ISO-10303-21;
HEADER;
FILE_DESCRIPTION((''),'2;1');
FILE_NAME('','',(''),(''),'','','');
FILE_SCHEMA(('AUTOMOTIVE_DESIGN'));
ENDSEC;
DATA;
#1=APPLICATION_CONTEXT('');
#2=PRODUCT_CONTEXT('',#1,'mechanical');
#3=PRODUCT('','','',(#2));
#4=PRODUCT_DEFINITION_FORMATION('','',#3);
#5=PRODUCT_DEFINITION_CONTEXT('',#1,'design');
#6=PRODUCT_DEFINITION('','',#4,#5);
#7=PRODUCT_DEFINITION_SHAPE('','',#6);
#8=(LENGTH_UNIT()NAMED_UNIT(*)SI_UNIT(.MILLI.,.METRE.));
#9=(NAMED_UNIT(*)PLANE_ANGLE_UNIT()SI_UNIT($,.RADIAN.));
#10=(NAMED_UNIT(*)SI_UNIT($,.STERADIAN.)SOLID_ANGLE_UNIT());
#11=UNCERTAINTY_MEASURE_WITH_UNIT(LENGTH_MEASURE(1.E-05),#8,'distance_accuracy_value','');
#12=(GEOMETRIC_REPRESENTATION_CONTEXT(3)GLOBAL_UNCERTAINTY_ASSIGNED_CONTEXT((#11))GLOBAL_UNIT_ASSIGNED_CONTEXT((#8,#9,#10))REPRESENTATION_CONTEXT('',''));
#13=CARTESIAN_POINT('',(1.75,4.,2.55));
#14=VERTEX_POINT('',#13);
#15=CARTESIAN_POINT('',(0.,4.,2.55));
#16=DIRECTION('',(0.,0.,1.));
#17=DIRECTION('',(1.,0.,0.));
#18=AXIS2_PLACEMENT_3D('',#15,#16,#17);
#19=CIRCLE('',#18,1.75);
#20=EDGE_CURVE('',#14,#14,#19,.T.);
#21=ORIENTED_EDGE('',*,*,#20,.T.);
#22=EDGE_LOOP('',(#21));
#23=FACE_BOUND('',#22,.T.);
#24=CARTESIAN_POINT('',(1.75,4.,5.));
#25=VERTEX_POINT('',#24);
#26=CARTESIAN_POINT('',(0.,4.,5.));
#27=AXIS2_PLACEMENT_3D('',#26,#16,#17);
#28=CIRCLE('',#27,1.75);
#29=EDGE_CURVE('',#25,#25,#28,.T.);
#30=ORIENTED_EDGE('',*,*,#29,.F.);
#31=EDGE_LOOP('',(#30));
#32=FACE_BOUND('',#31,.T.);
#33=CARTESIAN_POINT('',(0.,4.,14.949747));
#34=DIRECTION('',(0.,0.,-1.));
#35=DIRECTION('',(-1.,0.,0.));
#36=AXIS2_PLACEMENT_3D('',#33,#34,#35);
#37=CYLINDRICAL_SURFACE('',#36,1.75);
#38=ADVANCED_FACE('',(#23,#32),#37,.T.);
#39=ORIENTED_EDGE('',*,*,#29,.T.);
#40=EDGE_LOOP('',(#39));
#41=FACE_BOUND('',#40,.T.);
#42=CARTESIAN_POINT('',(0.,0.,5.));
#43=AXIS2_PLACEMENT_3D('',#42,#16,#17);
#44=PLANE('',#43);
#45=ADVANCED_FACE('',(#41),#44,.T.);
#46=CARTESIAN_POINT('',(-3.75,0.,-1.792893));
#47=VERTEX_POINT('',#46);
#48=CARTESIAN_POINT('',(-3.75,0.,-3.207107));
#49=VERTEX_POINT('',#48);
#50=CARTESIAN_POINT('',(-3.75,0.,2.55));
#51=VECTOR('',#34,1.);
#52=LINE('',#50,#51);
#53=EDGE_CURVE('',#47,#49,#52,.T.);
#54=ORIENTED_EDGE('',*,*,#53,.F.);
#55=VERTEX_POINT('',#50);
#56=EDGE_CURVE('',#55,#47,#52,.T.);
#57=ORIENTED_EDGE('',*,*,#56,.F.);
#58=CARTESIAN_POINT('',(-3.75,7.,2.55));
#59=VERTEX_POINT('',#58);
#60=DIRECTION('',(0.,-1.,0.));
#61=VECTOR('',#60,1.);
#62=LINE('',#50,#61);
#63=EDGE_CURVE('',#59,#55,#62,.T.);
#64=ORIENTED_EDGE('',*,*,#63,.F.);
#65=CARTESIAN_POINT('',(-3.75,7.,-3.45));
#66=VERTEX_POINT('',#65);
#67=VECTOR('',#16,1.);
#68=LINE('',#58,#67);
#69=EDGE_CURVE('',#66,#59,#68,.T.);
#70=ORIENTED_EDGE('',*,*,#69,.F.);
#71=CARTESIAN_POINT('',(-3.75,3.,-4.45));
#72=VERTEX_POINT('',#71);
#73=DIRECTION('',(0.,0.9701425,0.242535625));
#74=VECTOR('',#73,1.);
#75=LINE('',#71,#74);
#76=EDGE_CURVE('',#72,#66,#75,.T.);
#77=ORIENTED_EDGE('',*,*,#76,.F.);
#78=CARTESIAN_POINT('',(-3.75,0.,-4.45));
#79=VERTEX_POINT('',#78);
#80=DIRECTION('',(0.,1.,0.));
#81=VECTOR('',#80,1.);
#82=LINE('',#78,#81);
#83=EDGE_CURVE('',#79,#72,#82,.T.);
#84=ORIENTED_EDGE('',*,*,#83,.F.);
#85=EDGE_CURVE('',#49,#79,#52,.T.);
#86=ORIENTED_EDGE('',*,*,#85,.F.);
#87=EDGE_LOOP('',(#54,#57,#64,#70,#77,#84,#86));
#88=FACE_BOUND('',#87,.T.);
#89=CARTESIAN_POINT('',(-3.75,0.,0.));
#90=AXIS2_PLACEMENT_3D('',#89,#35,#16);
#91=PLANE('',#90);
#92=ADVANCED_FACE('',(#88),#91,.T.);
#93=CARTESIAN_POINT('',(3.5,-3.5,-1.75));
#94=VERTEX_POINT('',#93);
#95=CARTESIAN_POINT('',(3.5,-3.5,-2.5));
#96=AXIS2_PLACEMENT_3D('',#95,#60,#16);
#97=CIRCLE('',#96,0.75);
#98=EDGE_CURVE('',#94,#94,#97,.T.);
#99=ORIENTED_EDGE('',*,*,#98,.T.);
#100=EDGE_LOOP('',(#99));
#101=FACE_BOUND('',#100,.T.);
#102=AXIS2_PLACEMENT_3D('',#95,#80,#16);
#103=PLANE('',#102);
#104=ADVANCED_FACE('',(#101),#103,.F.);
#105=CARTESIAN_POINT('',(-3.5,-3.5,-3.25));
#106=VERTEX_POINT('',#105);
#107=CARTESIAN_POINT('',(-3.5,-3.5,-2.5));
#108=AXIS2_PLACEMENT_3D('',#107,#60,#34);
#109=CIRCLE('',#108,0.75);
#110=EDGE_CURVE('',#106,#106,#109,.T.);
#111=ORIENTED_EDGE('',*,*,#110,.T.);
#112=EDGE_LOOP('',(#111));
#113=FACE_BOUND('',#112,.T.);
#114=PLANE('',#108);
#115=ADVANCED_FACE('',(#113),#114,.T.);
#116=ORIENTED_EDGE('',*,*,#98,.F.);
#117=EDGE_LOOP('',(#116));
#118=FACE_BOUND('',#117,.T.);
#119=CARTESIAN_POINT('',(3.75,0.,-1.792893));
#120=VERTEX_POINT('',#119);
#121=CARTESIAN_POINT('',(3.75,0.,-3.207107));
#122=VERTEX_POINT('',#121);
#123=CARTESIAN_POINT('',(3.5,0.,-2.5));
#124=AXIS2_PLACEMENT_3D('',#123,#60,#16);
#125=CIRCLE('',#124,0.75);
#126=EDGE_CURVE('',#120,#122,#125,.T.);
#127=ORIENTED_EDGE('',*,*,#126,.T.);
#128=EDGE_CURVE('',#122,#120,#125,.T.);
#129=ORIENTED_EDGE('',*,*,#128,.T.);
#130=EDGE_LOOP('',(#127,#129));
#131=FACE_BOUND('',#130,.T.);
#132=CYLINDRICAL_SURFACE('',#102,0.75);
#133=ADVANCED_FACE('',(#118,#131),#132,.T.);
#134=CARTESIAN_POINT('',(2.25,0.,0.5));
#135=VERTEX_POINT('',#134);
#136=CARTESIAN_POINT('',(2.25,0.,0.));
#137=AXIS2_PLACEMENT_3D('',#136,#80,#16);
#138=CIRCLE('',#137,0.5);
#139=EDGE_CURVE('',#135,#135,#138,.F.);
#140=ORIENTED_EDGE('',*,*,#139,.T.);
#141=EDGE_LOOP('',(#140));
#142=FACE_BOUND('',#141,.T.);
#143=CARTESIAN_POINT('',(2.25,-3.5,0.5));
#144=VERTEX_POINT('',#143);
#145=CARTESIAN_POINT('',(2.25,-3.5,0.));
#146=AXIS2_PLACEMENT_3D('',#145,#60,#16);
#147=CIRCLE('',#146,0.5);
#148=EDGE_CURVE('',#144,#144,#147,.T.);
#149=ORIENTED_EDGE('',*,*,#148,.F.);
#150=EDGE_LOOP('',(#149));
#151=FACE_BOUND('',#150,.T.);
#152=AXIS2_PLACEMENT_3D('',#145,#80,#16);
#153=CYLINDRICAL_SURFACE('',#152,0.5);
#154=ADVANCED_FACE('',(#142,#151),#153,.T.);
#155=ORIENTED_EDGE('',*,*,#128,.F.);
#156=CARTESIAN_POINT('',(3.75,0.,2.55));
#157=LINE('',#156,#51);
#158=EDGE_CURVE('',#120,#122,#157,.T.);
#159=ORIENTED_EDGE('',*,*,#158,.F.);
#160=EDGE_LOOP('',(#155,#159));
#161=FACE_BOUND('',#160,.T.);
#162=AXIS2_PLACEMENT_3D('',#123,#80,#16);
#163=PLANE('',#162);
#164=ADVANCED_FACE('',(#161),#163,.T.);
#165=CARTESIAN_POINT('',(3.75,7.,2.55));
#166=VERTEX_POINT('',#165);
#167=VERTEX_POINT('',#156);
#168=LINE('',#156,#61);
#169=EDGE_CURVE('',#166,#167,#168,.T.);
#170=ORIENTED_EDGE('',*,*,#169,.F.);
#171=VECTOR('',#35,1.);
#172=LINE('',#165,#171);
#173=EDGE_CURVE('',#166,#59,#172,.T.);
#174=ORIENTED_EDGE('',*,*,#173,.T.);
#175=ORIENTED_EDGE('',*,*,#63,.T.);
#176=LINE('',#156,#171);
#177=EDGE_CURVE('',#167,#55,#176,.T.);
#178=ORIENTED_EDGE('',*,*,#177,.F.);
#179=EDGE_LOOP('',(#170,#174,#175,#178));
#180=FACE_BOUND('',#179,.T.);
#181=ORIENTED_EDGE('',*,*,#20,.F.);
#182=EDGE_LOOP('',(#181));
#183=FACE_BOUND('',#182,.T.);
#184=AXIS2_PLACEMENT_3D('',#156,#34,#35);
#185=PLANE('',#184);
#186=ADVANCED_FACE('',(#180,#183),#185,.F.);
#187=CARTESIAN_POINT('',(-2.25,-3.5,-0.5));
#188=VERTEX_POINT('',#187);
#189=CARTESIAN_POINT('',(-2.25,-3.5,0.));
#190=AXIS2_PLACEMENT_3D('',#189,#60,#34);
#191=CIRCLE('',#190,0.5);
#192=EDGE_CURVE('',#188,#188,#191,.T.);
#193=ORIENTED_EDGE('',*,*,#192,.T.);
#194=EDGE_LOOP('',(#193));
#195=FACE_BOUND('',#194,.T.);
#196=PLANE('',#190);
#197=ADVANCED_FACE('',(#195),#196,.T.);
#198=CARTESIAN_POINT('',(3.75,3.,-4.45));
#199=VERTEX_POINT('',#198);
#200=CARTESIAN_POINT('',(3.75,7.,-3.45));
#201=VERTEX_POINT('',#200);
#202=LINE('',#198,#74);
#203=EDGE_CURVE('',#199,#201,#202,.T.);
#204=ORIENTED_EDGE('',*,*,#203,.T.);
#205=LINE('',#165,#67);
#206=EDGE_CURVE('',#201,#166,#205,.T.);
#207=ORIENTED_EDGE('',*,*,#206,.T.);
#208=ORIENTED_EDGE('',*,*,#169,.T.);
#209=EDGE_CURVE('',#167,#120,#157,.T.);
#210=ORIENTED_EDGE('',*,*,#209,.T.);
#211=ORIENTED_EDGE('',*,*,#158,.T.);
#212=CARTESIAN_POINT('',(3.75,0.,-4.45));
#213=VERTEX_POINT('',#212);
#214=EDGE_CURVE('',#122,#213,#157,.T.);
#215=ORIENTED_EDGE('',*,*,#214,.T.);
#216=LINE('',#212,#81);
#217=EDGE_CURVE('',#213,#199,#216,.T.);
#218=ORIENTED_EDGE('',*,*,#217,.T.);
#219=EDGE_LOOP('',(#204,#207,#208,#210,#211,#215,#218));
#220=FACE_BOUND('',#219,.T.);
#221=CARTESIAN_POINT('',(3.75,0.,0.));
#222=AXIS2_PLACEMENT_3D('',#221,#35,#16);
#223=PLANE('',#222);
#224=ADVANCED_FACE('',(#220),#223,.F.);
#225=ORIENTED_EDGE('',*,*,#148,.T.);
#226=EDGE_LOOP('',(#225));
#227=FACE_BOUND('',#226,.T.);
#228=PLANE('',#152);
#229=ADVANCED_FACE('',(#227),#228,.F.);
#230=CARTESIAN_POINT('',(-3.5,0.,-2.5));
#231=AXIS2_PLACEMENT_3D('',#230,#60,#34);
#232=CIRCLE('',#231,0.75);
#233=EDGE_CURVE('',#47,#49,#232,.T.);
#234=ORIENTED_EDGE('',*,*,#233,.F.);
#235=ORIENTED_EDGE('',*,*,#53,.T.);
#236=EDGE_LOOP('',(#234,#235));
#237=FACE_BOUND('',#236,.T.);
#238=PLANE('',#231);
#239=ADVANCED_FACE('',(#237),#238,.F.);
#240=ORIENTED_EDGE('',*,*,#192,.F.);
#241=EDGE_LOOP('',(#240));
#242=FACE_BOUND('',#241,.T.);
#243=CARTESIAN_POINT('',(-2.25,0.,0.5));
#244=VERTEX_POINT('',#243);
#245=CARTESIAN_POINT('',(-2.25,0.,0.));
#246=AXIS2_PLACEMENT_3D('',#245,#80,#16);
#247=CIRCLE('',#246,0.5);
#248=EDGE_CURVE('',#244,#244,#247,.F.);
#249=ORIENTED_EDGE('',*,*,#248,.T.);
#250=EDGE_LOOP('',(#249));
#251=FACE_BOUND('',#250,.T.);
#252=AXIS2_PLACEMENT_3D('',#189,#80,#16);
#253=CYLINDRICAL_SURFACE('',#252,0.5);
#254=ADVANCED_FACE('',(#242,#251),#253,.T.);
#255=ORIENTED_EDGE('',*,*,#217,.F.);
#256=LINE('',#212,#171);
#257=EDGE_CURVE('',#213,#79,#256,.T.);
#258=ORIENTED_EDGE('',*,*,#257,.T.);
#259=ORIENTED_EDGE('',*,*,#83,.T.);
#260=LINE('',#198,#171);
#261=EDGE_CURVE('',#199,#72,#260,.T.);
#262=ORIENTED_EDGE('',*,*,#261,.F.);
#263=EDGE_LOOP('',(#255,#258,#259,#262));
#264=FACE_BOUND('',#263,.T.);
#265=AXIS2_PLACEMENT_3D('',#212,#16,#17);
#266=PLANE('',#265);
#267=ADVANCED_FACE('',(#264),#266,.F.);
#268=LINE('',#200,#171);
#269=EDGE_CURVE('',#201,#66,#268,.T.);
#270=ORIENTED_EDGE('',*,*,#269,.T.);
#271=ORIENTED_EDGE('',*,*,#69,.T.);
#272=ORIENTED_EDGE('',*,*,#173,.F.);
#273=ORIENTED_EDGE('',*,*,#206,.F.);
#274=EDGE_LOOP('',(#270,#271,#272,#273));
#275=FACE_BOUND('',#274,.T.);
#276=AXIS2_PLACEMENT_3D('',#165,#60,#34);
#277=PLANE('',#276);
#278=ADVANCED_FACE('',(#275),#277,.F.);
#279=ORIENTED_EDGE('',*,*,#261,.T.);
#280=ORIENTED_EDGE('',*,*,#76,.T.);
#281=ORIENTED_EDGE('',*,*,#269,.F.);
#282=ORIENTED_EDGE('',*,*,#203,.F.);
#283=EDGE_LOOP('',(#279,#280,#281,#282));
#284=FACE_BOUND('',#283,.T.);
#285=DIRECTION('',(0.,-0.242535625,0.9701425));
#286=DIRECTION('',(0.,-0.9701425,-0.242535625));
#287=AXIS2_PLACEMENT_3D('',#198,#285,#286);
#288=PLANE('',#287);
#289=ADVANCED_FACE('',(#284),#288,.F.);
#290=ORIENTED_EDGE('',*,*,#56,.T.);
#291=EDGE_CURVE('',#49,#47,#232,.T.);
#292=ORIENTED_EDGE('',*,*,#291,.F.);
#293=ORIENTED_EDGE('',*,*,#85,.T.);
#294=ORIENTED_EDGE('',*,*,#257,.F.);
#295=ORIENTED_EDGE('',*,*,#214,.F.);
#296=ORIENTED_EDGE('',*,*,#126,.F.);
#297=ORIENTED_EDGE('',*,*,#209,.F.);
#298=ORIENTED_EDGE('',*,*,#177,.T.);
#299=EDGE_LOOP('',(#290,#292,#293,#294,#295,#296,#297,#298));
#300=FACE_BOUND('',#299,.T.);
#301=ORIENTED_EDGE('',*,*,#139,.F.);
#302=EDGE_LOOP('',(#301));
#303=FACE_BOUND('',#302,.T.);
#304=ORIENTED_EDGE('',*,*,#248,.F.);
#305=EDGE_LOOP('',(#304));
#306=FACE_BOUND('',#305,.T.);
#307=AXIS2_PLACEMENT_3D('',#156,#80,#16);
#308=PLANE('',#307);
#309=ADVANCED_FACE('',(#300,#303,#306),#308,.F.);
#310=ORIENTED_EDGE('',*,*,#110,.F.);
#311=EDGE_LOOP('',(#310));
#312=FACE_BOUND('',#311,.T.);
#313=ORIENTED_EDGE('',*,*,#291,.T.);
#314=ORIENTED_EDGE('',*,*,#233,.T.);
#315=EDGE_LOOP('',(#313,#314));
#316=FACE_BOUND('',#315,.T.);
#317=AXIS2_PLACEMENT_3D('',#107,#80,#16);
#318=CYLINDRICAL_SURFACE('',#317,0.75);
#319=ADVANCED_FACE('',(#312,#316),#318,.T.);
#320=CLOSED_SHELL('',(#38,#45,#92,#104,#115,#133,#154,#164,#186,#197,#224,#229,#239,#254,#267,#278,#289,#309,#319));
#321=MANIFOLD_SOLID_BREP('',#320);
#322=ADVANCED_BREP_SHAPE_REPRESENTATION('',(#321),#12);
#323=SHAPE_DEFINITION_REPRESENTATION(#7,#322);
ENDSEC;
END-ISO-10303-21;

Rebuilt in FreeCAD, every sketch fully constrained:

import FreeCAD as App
import Part
import Sketcher


def add_polygon(sketch, points):
    """Adds a closed chain of lines whose ends are joined by coincident constraints."""
    first, n = sketch.GeometryCount, len(points)
    for a, b in zip(points, points[1:] + points[:1]):
        sketch.addGeometry(Part.LineSegment(App.Vector(*a, 0), App.Vector(*b, 0)), False)
    for i in range(n):
        sketch.addConstraint(Sketcher.Constraint("Coincident", first + i, 2, first + (i + 1) % n, 1))

doc = App.newDocument("Part")
body = doc.addObject("PartDesign::Body", "Body")

# Sketch on YZ plane
sketch1 = body.newObject("Sketcher::SketchObject", "Sketch")
sketch1.AttachmentSupport = (doc.getObject("YZ_Plane"), [""])
sketch1.MapMode = "FlatFace"
add_polygon(sketch1, [(0, 2.5), (0, -4.5), (3, -4.5), (7, -3.5), (7, 2.5)])  # lines 0-4
sketch1.addConstraint([
    Sketcher.Constraint("Vertical", 0),
    Sketcher.Constraint("Horizontal", 1),
    Sketcher.Constraint("Vertical", 3),
    Sketcher.Constraint("Horizontal", 4),
    Sketcher.Constraint("PointOnObject", 0, 2, -2),
    Sketcher.Constraint("Equal", 4, 0),
    Sketcher.Constraint("DistanceX", 1, 1, 1, 2, 3.0),
    Sketcher.Constraint("DistanceX", 4, 2, 4, 1, 7.0),
    Sketcher.Constraint("DistanceY", 3, 1, 3, 2, 6.0),
    Sketcher.Constraint("DistanceY", 0, 2, -1, 1, 4.45),
])
pad1 = body.newObject("PartDesign::Pad", "Pad")
pad1.Profile = sketch1
pad1.Length = 7.5
pad1.Midplane = True

# Sketch on XZ plane
sketch2 = body.newObject("Sketcher::SketchObject", "Sketch001")
sketch2.AttachmentSupport = (doc.getObject("XZ_Plane"), [""])
sketch2.MapMode = "FlatFace"
sketch2.addGeometry([
    Part.Circle(App.Vector(-3.5, -2.5, 0), App.Vector(0, 0, 1), 0.8),
    Part.Circle(App.Vector(-2.2, 0, 0), App.Vector(0, 0, 1), 0.5),
    Part.Circle(App.Vector(2.2, 0, 0), App.Vector(0, 0, 1), 0.5),
    Part.Circle(App.Vector(3.5, -2.5, 0), App.Vector(0, 0, 1), 0.8),
], False)
sketch2.addConstraint([
    Sketcher.Constraint("Equal", 1, 2),
    Sketcher.Constraint("Equal", 0, 3),
    Sketcher.Constraint("Symmetric", 1, 3, 2, 3, -1, 1),
    Sketcher.Constraint("Symmetric", 0, 3, 3, 3, -2),
    Sketcher.Constraint("PointOnObject", 1, 3, -1),
    Sketcher.Constraint("Diameter", 1, 1.0),
    Sketcher.Constraint("Diameter", 0, 1.5),
    Sketcher.Constraint("DistanceX", 0, 3, 3, 3, 7.0),
    Sketcher.Constraint("DistanceY", 0, 3, -1, 1, 2.5),
    Sketcher.Constraint("DistanceX", 1, 3, 2, 3, 4.5),
])
pad2 = body.newObject("PartDesign::Pad", "Pad001")
pad2.Profile = sketch2
pad2.Length = 3.5

# Sketch on XY plane
sketch3 = body.newObject("Sketcher::SketchObject", "Sketch002")
sketch3.AttachmentSupport = (doc.getObject("XY_Plane"), [""])
sketch3.MapMode = "FlatFace"
sketch3.AttachmentOffset = App.Placement(App.Vector(0, 0, 2.55), App.Rotation())
sketch3.addGeometry(Part.Circle(App.Vector(0, 4, 0), App.Vector(0, 0, 1), 1.8), False)
sketch3.addConstraint([
    Sketcher.Constraint("PointOnObject", 0, 3, -2),
    Sketcher.Constraint("Diameter", 0, 3.5),
    Sketcher.Constraint("DistanceY", -1, 1, 0, 3, 4.0),
])
pad3 = body.newObject("PartDesign::Pad", "Pad002")
pad3.Profile = sketch3
pad3.Length = 2.45

doc.recompute()
